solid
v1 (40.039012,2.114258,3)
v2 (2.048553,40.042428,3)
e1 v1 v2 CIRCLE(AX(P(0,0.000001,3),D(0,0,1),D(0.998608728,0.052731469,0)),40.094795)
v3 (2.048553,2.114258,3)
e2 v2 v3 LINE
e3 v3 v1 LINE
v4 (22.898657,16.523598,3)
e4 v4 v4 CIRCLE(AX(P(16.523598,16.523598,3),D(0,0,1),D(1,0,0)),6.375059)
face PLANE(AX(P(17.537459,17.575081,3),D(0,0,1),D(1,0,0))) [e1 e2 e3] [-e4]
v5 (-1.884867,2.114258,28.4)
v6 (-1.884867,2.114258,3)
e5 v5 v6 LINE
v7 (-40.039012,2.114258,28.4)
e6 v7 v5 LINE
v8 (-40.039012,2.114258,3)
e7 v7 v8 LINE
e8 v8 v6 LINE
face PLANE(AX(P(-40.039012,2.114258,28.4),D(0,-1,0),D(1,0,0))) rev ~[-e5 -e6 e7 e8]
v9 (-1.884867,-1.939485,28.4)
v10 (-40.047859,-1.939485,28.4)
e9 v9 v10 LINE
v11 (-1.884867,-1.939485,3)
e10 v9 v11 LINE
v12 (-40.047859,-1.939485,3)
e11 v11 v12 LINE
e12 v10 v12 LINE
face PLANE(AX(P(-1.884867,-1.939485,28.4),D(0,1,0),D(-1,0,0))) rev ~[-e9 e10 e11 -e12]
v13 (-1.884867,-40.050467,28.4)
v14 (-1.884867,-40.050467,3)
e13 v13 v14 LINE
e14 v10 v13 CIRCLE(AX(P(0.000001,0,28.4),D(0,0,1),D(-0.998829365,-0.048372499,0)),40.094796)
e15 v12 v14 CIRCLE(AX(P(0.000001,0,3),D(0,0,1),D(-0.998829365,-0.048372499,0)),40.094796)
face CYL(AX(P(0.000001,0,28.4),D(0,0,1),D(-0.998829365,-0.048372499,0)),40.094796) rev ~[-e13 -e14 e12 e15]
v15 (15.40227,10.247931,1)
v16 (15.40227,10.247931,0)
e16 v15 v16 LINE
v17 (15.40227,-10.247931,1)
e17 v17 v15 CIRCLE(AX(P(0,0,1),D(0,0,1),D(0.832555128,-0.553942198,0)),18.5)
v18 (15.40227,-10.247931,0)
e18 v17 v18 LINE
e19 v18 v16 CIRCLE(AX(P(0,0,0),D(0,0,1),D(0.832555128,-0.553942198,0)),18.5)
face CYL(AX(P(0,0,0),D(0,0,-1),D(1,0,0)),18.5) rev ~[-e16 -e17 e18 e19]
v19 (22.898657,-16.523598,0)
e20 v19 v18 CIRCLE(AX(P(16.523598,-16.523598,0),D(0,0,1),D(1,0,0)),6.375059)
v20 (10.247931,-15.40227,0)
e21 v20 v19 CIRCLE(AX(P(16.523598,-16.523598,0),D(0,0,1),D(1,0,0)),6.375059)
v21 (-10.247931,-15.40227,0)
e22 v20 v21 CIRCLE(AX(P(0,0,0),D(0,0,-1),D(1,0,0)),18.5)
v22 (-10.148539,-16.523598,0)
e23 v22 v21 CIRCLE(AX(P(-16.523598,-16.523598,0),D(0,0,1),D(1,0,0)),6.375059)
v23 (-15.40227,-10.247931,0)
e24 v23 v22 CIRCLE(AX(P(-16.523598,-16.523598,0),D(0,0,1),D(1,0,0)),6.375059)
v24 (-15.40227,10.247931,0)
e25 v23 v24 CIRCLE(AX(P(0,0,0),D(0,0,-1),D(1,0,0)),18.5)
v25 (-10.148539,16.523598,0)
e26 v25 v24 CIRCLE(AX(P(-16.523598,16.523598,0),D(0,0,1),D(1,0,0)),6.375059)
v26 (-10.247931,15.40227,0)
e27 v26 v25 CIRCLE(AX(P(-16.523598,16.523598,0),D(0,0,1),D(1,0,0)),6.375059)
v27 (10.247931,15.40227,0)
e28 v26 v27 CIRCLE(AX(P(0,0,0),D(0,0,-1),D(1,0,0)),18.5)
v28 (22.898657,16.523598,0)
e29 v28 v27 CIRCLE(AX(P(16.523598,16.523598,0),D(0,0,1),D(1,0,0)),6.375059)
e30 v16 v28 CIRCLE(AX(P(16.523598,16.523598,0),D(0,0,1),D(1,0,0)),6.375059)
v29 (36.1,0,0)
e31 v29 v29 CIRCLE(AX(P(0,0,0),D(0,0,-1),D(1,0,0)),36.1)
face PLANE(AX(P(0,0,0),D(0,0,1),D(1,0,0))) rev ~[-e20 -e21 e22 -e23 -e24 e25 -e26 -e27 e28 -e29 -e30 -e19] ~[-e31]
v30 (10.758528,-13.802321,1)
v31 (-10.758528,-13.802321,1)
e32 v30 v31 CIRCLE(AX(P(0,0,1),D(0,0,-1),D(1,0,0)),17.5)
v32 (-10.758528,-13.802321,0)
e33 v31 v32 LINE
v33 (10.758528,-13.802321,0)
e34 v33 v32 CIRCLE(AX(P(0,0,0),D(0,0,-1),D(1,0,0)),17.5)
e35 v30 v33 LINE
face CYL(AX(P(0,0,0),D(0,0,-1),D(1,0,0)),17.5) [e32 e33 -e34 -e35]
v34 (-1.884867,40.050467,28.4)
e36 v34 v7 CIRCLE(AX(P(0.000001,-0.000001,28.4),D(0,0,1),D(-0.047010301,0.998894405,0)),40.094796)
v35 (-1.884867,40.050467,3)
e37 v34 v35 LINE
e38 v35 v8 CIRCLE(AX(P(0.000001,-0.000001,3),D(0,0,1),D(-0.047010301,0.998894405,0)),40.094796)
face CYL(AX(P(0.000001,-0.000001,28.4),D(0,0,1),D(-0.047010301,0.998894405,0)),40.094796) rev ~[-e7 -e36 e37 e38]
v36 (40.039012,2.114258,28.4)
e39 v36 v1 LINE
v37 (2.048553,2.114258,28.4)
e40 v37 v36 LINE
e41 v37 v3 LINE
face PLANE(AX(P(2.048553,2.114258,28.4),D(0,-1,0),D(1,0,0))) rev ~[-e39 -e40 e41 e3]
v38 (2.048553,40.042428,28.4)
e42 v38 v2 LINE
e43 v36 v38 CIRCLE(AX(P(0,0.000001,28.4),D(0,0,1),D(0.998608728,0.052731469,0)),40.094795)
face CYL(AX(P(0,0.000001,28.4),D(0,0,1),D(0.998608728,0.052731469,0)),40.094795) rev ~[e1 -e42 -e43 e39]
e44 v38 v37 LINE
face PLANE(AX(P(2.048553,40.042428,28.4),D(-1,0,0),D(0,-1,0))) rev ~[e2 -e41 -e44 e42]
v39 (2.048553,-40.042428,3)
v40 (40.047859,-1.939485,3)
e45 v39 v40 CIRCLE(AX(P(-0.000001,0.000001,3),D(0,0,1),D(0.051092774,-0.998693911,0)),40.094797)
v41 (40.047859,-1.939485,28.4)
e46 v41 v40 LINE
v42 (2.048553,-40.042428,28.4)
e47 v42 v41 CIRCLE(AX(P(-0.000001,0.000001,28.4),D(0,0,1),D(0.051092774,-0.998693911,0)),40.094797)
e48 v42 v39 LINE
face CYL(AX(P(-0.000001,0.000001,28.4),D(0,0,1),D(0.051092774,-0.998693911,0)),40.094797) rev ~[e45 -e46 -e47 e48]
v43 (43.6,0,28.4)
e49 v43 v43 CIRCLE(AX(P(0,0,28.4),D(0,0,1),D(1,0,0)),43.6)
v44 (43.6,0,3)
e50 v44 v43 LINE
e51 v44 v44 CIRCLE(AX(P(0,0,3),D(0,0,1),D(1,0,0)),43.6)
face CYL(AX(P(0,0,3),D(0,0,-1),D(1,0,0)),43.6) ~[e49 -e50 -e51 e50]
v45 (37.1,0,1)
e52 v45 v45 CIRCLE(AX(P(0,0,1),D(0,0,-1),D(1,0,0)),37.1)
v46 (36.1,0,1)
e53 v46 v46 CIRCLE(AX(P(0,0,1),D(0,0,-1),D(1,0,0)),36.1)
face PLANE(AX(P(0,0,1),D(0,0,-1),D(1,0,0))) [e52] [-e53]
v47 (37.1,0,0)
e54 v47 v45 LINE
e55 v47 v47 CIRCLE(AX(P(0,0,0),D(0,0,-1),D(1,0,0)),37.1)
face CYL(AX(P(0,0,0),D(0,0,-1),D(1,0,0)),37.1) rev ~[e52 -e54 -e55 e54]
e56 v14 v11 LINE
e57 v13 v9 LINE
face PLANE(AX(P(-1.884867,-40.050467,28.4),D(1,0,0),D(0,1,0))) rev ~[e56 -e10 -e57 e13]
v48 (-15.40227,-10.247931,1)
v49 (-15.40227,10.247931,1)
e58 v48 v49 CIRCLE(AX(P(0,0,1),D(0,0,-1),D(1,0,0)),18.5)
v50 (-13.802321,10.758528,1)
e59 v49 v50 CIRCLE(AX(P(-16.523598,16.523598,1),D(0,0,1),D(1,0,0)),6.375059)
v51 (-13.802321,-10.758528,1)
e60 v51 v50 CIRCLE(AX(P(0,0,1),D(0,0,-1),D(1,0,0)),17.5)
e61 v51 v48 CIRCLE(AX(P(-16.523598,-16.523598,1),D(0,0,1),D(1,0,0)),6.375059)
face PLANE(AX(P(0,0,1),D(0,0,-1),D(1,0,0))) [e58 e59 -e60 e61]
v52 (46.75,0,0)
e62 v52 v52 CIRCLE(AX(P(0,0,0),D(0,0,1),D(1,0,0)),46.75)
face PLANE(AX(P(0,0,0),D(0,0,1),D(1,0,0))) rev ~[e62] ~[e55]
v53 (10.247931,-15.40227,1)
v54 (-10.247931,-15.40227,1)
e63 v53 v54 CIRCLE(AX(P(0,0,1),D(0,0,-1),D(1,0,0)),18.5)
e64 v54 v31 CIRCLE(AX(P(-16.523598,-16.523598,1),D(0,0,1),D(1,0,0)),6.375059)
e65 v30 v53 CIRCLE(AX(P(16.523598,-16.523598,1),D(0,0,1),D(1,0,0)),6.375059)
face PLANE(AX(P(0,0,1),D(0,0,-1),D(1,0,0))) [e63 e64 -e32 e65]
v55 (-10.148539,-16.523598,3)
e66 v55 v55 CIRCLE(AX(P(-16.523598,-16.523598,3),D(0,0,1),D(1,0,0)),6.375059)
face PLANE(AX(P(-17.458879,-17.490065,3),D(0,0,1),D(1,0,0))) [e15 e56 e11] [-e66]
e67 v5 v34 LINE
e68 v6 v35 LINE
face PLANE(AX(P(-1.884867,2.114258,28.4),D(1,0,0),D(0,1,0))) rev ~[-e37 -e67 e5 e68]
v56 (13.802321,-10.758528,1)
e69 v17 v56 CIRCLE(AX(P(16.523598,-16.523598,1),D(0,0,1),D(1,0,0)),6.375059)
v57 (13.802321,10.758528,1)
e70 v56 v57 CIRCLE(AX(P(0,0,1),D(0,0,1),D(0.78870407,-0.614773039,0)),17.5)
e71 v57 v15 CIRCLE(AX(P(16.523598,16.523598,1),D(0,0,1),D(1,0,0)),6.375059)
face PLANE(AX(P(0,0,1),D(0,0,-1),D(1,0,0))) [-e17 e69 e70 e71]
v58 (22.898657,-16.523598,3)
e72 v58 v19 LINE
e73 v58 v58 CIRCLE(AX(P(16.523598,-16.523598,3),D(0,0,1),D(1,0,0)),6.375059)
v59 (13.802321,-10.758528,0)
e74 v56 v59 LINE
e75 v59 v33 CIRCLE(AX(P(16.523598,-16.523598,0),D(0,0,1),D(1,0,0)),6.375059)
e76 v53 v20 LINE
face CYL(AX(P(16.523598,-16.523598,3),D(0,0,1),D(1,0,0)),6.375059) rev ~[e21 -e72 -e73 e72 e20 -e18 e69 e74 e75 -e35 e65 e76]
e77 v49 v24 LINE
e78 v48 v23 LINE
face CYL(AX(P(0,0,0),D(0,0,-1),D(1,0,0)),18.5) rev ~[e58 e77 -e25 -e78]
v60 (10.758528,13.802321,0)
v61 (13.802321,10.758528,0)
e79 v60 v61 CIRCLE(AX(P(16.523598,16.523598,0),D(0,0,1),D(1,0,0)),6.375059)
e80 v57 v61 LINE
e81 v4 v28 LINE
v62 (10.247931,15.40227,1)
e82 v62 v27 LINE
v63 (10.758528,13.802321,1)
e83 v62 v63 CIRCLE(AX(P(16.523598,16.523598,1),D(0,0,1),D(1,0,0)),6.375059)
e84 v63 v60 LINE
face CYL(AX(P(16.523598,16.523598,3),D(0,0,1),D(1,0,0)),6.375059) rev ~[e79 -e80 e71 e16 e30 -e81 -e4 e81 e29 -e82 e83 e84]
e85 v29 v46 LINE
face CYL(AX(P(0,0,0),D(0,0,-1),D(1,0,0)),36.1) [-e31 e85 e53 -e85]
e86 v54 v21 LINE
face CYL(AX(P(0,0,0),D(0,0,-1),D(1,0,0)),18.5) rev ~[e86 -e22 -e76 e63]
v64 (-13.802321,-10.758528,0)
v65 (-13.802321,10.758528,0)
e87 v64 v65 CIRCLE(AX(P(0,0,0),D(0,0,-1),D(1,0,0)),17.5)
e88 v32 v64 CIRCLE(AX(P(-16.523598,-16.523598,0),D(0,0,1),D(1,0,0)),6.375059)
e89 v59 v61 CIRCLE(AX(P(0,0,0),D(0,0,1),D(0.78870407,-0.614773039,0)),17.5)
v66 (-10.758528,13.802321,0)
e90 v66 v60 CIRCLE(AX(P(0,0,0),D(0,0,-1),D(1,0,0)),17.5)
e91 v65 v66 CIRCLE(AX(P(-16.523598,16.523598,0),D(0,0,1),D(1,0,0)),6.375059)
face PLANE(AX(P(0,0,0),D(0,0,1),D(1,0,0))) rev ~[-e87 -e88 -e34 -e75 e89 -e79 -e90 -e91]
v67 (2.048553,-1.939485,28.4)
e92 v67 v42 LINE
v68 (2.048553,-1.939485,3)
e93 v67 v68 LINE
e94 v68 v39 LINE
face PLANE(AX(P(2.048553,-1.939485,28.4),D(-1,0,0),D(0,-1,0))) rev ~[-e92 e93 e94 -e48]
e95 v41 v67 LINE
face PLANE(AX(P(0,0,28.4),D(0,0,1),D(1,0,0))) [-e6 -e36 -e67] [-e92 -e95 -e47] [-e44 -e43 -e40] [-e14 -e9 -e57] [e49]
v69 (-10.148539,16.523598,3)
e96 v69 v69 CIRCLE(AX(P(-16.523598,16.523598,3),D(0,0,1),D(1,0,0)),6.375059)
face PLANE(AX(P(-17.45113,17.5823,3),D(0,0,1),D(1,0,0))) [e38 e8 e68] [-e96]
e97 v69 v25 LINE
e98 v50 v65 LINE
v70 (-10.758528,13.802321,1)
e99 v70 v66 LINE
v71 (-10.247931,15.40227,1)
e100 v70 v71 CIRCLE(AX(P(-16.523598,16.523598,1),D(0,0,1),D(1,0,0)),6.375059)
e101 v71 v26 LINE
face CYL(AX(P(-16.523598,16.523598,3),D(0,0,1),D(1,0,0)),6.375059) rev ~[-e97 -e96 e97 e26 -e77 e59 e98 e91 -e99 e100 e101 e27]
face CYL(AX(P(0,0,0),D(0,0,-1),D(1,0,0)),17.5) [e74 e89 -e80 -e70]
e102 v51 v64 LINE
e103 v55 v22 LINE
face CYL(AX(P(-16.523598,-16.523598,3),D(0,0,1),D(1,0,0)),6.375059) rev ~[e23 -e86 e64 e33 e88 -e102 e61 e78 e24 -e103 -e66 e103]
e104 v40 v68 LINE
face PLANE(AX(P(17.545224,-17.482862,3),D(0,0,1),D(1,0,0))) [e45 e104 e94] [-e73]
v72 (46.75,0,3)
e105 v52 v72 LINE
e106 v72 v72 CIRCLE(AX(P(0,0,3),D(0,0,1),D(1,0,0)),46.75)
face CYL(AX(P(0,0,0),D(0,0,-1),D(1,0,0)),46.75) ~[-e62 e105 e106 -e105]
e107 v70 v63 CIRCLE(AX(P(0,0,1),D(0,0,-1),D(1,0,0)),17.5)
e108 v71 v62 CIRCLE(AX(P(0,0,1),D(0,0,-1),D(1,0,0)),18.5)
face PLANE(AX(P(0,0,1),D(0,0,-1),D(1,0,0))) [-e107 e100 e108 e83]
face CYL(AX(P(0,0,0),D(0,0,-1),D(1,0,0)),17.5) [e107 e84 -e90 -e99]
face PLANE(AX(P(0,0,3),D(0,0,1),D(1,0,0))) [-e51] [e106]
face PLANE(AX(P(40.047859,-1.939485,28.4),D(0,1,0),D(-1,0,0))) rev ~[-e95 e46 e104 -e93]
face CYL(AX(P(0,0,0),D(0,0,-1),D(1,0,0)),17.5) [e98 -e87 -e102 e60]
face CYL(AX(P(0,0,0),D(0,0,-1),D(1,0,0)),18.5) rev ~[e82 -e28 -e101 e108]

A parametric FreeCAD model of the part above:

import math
import FreeCAD as App
import Part
import Sketcher
from FreeCAD import Vector

doc = App.newDocument("Part")
body = doc.addObject("PartDesign::Body", "Body")

# Sketch on XY plane
sketch1 = doc.addObject("Sketcher::SketchObject", "Sketch")
body.addObject(sketch1)
sketch1.AttachmentSupport = (doc.XY_Plane, [""])
sketch1.MapMode = "FlatFace"
sketch1.addGeometry(Part.Circle(Vector(0, 0, 0), Vector(0, 0, 1), 46.75), False)
sketch1.addConstraint([
    Sketcher.Constraint("Coincident", 0, 3, -1, 1),
    Sketcher.Constraint("Diameter", 0, 93.5),
])
pad1 = doc.addObject("PartDesign::Pad", "Pad")
body.addObject(pad1)
pad1.Profile = sketch1
pad1.Length = 3

# Sketch on XY plane
sketch2 = doc.addObject("Sketcher::SketchObject", "Sketch001")
body.addObject(sketch2)
sketch2.AttachmentSupport = (doc.XY_Plane, [""])
sketch2.MapMode = "FlatFace"
sketch2.AttachmentOffset = App.Placement(Vector(0, 0, 3), App.Rotation())
sketch2.addGeometry(Part.Circle(Vector(0, 0, 0), Vector(0, 0, 1), 43.6), False)
sketch2.addConstraint([
    Sketcher.Constraint("Coincident", 0, 3, -1, 1),
    Sketcher.Constraint("Diameter", 0, 87.2),
])
pad2 = doc.addObject("PartDesign::Pad", "Pad001")
body.addObject(pad2)
pad2.Profile = sketch2
pad2.Length = 25.4

# Sketch on XY plane
sketch3 = doc.addObject("Sketcher::SketchObject", "Sketch002")
body.addObject(sketch3)
sketch3.AttachmentSupport = (doc.XY_Plane, [""])
sketch3.MapMode = "FlatFace"
sketch3.addGeometry([
    Part.Circle(Vector(0, 0, 0), Vector(0, 0, 1), 37.1),
    Part.Circle(Vector(0, 0, 0), Vector(0, 0, 1), 36.1),
    Part.Circle(Vector(0, 0, 0), Vector(0, 0, 1), 18.5),
    Part.Circle(Vector(0, 0, 0), Vector(0, 0, 1), 17.5),
], False)
sketch3.addConstraint([
    Sketcher.Constraint("Coincident", 0, 3, -1, 1),
    Sketcher.Constraint("Coincident", 1, 3, -1, 1),
    Sketcher.Constraint("Coincident", 2, 3, -1, 1),
    Sketcher.Constraint("Coincident", 3, 3, -1, 1),
    Sketcher.Constraint("Diameter", 2, 37.0),
    Sketcher.Constraint("Diameter", 3, 35.0),
    Sketcher.Constraint("Diameter", 0, 74.2),
    Sketcher.Constraint("Diameter", 1, 72.2),
])
pocket1 = doc.addObject("PartDesign::Pocket", "Pocket")
body.addObject(pocket1)
pocket1.Profile = sketch3
pocket1.Length = 1
pocket1.Reversed = True

# Sketch on XY plane
sketch4 = doc.addObject("Sketcher::SketchObject", "Sketch003")
body.addObject(sketch4)
sketch4.AttachmentSupport = (doc.XY_Plane, [""])
sketch4.MapMode = "FlatFace"
sketch4.AttachmentOffset = App.Placement(Vector(0, 0, 28.4), App.Rotation())
sketch4.addGeometry([
    Part.LineSegment(Vector(-1.884867, -40.050467, 0), Vector(-1.884867, -1.939485, 0)),  # 0
    Part.LineSegment(Vector(-1.884867, -1.939485, 0), Vector(-40.047859, -1.939485, 0)),  # 1
    Part.ArcOfCircle(Part.Circle(Vector(0.000001, 0, 0), Vector(0, 0, 1), 40.094796), math.radians(-177.227378), math.radians(-92.694484)),  # 2
    Part.LineSegment(Vector(-40.039012, 2.114258, 0), Vector(-1.884867, 2.114258, 0)),  # 3
    Part.LineSegment(Vector(-1.884867, 2.114258, 0), Vector(-1.884867, 40.050467, 0)),  # 4
    Part.ArcOfCircle(Part.Circle(Vector(0.000001, -0.000001, 0), Vector(0, 0, 1), 40.094796), math.radians(92.694485), math.radians(176.977306)),  # 5
    Part.LineSegment(Vector(2.048553, 40.042428, 0), Vector(2.048553, 2.114258, 0)),  # 6
    Part.LineSegment(Vector(2.048553, 2.114258, 0), Vector(40.039012, 2.114258, 0)),  # 7
    Part.ArcOfCircle(Part.Circle(Vector(0, 0.000001, 0), Vector(0, 0, 1), 40.094795), math.radians(3.022693), math.radians(87.071326)),  # 8
    Part.LineSegment(Vector(40.047859, -1.939485, 0), Vector(2.048553, -1.939485, 0)),  # 9
    Part.LineSegment(Vector(2.048553, -1.939485, 0), Vector(2.048553, -40.042428, 0)),  # 10
    Part.ArcOfCircle(Part.Circle(Vector(-0.000001, 0.000001, 0), Vector(0, 0, 1), 40.094797), math.radians(-87.071325), math.radians(-2.772623)),  # 11
], False)
sketch4.addConstraint([
    Sketcher.Constraint("Coincident", 0, 2, 1, 1),
    Sketcher.Constraint("Coincident", 1, 2, 2, 1),
    Sketcher.Constraint("Coincident", 2, 2, 0, 1),
    Sketcher.Constraint("Coincident", 3, 2, 4, 1),
    Sketcher.Constraint("Coincident", 4, 2, 5, 1),
    Sketcher.Constraint("Coincident", 5, 2, 3, 1),
    Sketcher.Constraint("Coincident", 6, 2, 7, 1),
    Sketcher.Constraint("Coincident", 7, 2, 8, 1),
    Sketcher.Constraint("Coincident", 8, 2, 6, 1),
    Sketcher.Constraint("Coincident", 9, 2, 10, 1),
    Sketcher.Constraint("Coincident", 10, 2, 11, 1),
    Sketcher.Constraint("Coincident", 11, 2, 9, 1),
    Sketcher.Constraint("Vertical", 0),
    Sketcher.Constraint("Horizontal", 1),
    Sketcher.Constraint("Horizontal", 3),
    Sketcher.Constraint("Vertical", 4),
    Sketcher.Constraint("Vertical", 6),
    Sketcher.Constraint("Horizontal", 7),
    Sketcher.Constraint("Horizontal", 9),
    Sketcher.Constraint("Vertical", 10),
    Sketcher.Constraint("Coincident", 2, 3, -1, 1),
    Sketcher.Constraint("Coincident", 5, 3, -1, 1),
    Sketcher.Constraint("Coincident", 8, 3, -1, 1),
    Sketcher.Constraint("Coincident", 11, 3, -1, 1),
    Sketcher.Constraint("Radius", 2, 40.094796),
    Sketcher.Constraint("Radius", 5, 40.094796),
    Sketcher.Constraint("Radius", 8, 40.094795),
    Sketcher.Constraint("Radius", 11, 40.094797),
    Sketcher.Constraint("DistanceX", 7, 1, 7, 2, 37.990459),
    Sketcher.Constraint("DistanceY", 4, 1, 4, 2, 37.936209),
    Sketcher.Constraint("DistanceY", 6, 2, 6, 1, 37.92817),
    Sketcher.Constraint("DistanceX", 1, 2, 1, 1, 38.162992),
    Sketcher.Constraint("DistanceX", 3, 1, 3, 2, 38.154145),
    Sketcher.Constraint("DistanceX", 9, 2, 9, 1, 37.999306),
    Sketcher.Constraint("DistanceY", 0, 1, 0, 2, 38.110982),
    Sketcher.Constraint("DistanceY", 10, 2, 10, 1, 38.102943),
])
pocket2 = doc.addObject("PartDesign::Pocket", "Pocket001")
body.addObject(pocket2)
pocket2.Profile = sketch4
pocket2.Length = 25.4

# Sketch on XY plane
sketch5 = doc.addObject("Sketcher::SketchObject", "Sketch004")
body.addObject(sketch5)
sketch5.AttachmentSupport = (doc.XY_Plane, [""])
sketch5.MapMode = "FlatFace"
sketch5.AttachmentOffset = App.Placement(Vector(0, 0, 3), App.Rotation())
sketch5.addGeometry([
    Part.Circle(Vector(-16.523598, 16.523598, 0), Vector(0, 0, 1), 6.375059),
    Part.Circle(Vector(16.523598, 16.523598, 0), Vector(0, 0, 1), 6.375059),
    Part.Circle(Vector(16.523598, -16.523598, 0), Vector(0, 0, 1), 6.375059),
    Part.Circle(Vector(-16.523598, -16.523598, 0), Vector(0, 0, 1), 6.375059),
], False)
sketch5.addConstraint([
    Sketcher.Constraint("Equal", 0, 1),
    Sketcher.Constraint("Equal", 1, 2),
    Sketcher.Constraint("Equal", 2, 3),
    Sketcher.Constraint("Symmetric", 0, 3, 2, 3, -1, 1),
    Sketcher.Constraint("Symmetric", 1, 3, 3, 3, -1, 1),
    Sketcher.Constraint("Symmetric", 0, 3, 1, 3, -2),
    Sketcher.Constraint("Diameter", 0, 12.750118),
    Sketcher.Constraint("DistanceX", 0, 3, -1, 1, 16.523598),
    Sketcher.Constraint("DistanceY", -1, 1, 0, 3, 16.523598),
])
pocket3 = doc.addObject("PartDesign::Pocket", "Pocket002")
body.addObject(pocket3)
pocket3.Profile = sketch5
pocket3.Type = "ThroughAll"

doc.recompute()
